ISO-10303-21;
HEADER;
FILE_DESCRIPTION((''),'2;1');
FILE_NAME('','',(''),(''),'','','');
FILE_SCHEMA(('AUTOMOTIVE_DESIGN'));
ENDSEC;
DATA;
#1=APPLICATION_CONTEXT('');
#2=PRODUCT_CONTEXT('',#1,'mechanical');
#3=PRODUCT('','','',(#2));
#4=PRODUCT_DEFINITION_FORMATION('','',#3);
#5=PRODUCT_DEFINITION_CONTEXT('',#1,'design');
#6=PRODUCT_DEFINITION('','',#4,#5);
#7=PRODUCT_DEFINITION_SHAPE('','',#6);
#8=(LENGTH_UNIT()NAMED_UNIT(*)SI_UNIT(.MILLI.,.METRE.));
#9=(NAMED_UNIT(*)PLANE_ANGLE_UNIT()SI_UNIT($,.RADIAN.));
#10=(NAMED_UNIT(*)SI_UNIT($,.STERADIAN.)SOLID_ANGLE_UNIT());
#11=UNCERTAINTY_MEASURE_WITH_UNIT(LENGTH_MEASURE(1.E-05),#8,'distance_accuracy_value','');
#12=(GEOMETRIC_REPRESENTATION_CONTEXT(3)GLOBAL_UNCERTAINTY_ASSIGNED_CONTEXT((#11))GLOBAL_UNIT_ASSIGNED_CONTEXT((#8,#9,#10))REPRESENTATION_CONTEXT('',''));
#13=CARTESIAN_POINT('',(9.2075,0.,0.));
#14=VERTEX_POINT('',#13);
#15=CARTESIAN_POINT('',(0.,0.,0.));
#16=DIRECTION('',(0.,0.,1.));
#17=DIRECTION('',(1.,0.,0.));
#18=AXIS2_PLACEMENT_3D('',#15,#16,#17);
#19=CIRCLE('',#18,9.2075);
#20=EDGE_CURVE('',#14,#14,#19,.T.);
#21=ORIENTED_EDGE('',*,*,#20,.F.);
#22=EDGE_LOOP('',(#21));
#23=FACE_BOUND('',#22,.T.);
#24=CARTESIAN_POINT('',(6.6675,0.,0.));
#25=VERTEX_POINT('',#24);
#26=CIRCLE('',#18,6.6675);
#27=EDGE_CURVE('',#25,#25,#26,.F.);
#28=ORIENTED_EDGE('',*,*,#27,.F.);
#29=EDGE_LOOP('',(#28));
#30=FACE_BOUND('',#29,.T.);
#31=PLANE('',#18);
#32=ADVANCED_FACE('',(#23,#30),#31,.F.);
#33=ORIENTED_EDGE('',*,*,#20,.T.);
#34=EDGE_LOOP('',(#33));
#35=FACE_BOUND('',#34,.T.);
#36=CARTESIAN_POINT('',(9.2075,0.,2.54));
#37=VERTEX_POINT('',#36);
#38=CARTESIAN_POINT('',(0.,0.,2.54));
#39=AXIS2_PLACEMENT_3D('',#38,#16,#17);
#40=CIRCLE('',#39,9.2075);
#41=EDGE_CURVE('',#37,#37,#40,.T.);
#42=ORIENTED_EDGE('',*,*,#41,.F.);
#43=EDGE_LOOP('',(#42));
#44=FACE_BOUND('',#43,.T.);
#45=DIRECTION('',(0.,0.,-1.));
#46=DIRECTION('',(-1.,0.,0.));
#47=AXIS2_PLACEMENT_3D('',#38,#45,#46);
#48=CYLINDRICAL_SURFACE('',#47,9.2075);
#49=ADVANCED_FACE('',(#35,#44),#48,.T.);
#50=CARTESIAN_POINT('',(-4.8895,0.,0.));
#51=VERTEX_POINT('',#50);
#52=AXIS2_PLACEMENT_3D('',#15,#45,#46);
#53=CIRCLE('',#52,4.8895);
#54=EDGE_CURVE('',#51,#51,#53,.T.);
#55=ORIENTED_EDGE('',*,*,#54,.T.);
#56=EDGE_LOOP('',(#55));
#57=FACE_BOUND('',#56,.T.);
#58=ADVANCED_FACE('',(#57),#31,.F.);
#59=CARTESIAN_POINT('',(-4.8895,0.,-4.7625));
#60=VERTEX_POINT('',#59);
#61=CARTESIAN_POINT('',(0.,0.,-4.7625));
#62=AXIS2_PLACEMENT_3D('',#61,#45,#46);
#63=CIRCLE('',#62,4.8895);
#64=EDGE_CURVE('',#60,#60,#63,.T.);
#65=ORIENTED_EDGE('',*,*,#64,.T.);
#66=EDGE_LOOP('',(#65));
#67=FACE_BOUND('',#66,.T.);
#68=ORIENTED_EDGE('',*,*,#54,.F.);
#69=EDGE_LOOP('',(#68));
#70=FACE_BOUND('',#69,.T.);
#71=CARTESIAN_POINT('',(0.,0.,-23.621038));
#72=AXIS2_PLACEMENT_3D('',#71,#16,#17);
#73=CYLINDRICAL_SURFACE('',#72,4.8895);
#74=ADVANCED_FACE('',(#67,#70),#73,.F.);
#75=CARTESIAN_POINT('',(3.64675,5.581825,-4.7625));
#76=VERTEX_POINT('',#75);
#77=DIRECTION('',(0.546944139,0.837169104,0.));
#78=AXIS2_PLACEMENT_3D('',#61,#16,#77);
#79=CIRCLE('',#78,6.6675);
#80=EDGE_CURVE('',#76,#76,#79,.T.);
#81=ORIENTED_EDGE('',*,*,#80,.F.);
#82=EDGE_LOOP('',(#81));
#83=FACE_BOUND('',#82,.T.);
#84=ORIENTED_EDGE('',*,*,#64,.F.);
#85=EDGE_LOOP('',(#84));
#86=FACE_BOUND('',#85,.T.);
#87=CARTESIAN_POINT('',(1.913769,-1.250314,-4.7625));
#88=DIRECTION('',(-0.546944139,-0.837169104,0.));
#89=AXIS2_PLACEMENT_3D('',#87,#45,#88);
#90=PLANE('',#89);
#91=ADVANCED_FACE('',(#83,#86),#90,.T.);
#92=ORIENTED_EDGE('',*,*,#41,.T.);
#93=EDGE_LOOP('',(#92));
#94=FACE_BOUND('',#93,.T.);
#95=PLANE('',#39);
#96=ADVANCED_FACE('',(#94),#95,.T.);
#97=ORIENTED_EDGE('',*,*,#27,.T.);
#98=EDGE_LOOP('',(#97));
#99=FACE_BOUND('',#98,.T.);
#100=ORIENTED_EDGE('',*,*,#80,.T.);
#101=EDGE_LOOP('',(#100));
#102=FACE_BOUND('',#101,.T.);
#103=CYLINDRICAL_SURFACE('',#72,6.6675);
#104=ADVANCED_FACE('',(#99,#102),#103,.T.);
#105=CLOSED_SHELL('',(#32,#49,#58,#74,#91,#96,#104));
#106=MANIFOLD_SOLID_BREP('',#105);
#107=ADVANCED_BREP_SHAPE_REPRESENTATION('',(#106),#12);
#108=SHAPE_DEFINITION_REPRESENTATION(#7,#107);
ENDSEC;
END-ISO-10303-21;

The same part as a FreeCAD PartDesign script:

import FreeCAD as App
import Part
import Sketcher

V = App.Vector
Q = App.Units.Quantity

doc = App.newDocument("Part")
body = doc.addObject("PartDesign::Body", "Body")

# Sketch on XY plane
sketch1 = body.newObject("Sketcher::SketchObject", "Sketch")
sketch1.AttachmentSupport = (doc.getObject("XY_Plane"), [""])
sketch1.MapMode = "FlatFace"
sketch1.addGeometry(Part.Circle(V(0, 0, 0), V(0, 0, 1), 9), False)
sketch1.addConstraint([
    Sketcher.Constraint("Coincident", 0, 3, -1, 1),
    Sketcher.Constraint("Diameter", 0, Q("0.725 in")),
])
pad1 = body.newObject("PartDesign::Pad", "Pad")
pad1.Profile = sketch1
pad1.Length = Q("0.1 in")

# Sketch on XY plane
sketch2 = body.newObject("Sketcher::SketchObject", "Sketch001")
sketch2.AttachmentSupport = (doc.getObject("XY_Plane"), [""])
sketch2.MapMode = "FlatFace"
sketch2.addGeometry([
    Part.Circle(V(0, 0, 0), V(0, 0, 1), 6.7),
    Part.Circle(V(0, 0, 0), V(0, 0, 1), 4.9),
], False)
sketch2.addConstraint([
    Sketcher.Constraint("Coincident", 0, 3, -1, 1),
    Sketcher.Constraint("Coincident", 1, 3, -1, 1),
    Sketcher.Constraint("Diameter", 0, Q("0.525 in")),
    Sketcher.Constraint("Diameter", 1, Q("0.385 in")),
])
pad2 = body.newObject("PartDesign::Pad", "Pad001")
pad2.Profile = sketch2
pad2.Length = Q("0.1875 in")
pad2.Reversed = True

doc.recompute()
